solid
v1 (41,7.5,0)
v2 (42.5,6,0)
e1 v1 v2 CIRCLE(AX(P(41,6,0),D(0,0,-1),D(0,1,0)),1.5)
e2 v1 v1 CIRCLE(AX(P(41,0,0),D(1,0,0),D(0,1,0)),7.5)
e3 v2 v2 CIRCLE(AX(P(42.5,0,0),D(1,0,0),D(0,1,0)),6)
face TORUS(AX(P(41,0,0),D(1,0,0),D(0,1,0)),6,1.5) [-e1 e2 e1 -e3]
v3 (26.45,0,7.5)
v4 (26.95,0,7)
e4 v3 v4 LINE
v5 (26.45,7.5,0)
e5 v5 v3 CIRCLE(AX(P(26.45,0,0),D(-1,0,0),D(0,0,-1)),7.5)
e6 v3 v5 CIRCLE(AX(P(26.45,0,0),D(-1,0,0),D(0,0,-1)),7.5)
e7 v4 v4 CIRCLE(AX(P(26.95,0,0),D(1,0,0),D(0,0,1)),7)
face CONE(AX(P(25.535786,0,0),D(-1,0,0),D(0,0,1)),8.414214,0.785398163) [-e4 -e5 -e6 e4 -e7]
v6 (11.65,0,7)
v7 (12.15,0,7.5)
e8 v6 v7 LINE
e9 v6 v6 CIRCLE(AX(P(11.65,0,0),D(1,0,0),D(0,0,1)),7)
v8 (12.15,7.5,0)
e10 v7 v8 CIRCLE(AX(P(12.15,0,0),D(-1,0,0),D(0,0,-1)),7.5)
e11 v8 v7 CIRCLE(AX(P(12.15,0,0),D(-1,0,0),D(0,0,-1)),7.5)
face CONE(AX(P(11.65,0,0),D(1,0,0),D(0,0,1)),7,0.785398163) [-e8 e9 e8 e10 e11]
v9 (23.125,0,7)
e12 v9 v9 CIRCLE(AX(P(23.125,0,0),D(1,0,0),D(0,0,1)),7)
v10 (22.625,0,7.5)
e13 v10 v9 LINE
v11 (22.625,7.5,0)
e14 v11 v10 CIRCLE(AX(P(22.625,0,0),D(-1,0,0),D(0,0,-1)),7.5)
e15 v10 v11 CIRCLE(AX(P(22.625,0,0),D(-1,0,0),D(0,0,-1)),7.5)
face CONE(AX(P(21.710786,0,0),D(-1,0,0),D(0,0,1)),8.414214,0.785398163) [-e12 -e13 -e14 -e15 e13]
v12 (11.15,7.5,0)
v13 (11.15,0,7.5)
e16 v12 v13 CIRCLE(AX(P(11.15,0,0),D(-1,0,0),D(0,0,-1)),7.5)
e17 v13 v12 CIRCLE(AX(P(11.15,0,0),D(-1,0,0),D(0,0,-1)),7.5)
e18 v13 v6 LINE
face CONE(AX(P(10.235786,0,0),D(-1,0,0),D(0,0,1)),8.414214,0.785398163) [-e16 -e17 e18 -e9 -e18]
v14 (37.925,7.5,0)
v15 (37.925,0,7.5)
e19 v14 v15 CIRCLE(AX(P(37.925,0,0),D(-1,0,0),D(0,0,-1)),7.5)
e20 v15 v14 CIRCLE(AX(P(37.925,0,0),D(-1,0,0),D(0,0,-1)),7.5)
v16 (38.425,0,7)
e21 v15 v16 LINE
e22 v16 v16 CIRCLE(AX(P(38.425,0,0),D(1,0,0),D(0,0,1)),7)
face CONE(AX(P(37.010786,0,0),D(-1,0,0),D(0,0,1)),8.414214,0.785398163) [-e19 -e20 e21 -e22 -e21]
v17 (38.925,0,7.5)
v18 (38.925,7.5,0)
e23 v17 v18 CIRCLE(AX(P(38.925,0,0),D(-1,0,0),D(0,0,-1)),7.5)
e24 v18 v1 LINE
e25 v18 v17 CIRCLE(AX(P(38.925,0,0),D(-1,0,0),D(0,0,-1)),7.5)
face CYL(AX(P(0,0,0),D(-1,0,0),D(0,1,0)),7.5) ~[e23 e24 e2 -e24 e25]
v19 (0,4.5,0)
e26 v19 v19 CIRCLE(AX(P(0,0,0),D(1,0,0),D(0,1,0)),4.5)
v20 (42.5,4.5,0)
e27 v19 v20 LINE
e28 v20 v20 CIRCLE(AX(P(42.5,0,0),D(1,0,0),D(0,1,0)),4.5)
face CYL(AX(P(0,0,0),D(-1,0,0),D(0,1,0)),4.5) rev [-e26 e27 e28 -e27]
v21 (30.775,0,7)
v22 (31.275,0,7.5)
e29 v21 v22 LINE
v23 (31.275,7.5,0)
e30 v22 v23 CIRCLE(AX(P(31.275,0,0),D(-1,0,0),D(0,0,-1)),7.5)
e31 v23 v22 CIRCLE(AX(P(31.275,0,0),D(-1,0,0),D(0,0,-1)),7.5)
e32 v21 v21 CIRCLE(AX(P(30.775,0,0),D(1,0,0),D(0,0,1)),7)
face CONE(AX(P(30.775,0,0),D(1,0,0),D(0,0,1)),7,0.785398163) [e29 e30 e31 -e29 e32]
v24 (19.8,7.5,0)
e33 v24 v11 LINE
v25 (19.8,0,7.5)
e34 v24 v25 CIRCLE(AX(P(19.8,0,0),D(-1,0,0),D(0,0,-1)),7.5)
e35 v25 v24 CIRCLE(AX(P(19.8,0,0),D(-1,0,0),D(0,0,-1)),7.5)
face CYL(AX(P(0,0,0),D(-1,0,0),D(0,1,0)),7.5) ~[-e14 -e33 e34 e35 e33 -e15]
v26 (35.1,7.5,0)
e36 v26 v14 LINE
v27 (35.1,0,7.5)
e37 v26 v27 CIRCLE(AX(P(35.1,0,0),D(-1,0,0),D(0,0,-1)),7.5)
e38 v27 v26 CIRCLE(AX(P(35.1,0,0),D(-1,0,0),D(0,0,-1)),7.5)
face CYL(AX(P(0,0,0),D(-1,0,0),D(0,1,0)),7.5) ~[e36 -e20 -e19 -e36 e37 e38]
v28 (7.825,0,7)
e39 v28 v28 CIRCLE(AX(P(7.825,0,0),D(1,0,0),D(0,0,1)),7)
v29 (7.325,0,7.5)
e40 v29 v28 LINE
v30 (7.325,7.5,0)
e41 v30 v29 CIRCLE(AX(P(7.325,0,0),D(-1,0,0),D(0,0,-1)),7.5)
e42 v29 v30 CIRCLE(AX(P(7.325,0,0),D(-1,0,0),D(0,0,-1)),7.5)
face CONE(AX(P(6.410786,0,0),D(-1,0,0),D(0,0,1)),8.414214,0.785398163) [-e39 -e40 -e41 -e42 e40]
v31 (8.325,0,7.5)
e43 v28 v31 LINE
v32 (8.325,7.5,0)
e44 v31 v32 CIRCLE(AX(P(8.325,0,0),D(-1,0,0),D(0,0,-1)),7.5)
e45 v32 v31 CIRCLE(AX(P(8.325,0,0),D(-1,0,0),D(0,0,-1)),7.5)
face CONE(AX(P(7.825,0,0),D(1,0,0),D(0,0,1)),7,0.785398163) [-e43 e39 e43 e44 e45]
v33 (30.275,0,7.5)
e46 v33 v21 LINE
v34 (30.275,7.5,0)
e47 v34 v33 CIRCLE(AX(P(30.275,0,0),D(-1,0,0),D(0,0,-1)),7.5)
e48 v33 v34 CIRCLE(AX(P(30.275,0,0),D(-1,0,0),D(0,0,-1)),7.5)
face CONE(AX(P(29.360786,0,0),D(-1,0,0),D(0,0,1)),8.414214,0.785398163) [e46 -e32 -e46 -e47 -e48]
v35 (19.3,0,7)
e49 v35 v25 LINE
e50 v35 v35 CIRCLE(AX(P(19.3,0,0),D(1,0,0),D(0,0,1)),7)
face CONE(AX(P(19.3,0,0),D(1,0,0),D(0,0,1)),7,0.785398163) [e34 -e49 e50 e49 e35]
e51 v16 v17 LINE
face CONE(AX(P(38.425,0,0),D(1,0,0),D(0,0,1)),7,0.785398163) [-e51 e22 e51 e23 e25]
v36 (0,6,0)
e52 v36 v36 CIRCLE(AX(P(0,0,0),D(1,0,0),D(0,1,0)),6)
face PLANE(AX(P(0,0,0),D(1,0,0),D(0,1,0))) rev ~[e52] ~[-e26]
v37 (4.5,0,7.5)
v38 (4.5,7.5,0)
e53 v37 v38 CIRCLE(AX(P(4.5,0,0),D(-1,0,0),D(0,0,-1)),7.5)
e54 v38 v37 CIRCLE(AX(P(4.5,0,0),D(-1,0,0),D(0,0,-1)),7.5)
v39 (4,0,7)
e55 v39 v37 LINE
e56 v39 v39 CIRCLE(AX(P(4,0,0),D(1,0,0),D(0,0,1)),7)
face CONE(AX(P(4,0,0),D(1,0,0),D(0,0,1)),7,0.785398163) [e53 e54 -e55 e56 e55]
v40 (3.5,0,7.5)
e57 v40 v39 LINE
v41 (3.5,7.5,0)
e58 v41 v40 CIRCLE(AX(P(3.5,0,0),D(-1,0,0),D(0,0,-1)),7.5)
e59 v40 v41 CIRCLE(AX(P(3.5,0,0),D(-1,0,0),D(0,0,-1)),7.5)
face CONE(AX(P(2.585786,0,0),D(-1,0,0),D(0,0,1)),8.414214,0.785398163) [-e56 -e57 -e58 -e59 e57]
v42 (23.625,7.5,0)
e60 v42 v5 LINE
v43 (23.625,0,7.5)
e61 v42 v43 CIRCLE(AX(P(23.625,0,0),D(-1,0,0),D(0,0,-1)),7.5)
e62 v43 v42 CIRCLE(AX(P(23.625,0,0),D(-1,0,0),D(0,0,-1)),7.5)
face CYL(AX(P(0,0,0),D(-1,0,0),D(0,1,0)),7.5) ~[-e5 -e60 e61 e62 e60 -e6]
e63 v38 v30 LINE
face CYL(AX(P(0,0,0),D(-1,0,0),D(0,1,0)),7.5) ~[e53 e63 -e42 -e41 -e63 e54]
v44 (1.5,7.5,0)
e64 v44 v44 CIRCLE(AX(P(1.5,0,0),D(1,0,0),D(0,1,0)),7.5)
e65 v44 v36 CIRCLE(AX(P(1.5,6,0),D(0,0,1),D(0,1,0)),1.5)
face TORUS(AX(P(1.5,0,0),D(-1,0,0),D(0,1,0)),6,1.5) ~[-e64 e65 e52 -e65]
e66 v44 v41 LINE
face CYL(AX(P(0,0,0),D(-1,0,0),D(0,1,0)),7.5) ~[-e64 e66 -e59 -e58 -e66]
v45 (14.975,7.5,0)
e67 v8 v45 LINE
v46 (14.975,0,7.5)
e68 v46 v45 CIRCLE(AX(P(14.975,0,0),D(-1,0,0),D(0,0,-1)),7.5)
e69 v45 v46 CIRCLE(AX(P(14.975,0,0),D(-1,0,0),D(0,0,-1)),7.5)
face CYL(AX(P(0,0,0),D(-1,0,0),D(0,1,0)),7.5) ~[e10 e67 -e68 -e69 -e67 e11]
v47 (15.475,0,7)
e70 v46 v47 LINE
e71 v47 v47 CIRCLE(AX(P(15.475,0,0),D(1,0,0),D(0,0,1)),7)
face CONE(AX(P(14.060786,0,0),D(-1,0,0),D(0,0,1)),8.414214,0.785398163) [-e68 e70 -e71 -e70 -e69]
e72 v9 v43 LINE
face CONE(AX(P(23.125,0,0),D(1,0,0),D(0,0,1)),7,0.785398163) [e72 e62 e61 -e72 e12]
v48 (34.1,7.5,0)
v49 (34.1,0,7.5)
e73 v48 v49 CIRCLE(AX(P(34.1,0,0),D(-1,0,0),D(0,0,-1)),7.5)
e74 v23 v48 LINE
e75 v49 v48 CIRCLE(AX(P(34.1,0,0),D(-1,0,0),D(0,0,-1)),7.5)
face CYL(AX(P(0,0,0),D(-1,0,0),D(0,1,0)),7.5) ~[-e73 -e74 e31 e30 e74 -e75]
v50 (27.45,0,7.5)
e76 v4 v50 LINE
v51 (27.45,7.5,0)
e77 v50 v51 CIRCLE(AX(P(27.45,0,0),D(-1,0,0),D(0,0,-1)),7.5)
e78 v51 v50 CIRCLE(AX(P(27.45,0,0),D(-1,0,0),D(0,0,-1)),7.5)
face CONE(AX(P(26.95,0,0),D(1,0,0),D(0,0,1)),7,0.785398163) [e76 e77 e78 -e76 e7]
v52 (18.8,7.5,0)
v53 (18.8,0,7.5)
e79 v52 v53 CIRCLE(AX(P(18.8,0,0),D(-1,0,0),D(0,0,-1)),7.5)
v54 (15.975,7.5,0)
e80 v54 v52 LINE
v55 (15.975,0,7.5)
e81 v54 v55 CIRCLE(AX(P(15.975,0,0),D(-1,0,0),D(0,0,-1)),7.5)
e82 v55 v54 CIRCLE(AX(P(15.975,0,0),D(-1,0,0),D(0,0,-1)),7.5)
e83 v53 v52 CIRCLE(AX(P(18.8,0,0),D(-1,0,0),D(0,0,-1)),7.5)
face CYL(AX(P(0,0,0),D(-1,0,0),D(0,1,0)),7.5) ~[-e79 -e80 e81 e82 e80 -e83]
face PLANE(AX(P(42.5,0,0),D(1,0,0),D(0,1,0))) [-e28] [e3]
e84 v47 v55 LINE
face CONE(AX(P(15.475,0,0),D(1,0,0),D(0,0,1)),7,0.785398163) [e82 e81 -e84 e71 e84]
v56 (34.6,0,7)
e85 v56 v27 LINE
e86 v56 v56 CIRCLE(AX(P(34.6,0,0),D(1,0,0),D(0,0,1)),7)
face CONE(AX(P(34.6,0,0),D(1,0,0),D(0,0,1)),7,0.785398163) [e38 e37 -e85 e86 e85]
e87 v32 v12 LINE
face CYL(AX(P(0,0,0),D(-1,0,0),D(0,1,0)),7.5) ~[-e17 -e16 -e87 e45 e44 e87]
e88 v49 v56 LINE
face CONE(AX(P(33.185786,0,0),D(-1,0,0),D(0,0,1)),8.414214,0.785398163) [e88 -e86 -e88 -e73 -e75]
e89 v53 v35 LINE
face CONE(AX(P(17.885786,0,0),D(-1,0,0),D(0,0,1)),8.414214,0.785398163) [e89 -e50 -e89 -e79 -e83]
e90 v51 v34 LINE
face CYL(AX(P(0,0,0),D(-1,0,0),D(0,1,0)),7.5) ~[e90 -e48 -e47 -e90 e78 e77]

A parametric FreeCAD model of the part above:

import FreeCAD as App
import Part
import Sketcher
Q = App.Units.Quantity


def edges_at(feature, points):
    """Names of the edges that pass closest to the given points."""
    edges = feature.Shape.Edges
    near = lambda p: min(range(len(edges)), key=lambda i: edges[i].distToShape(Part.Vertex(*p))[0])
    return sorted({f"Edge{near(p) + 1}" for p in points})


def add_polygon(sketch, points):
    """Adds a closed chain of lines whose ends are joined by coincident constraints."""
    first, n = sketch.GeometryCount, len(points)
    for a, b in zip(points, points[1:] + points[:1]):
        sketch.addGeometry(Part.LineSegment(App.Vector(*a, 0), App.Vector(*b, 0)), False)
    for i in range(n):
        sketch.addConstraint(Sketcher.Constraint("Coincident", first + i, 2, first + (i + 1) % n, 1))

doc = App.newDocument("Part")
body = doc.addObject("PartDesign::Body", "Body")

sketch1 = doc.addObject("Sketcher::SketchObject", "Sketch")
body.addObject(sketch1)
sketch1.AttachmentSupport = (doc.YZ_Plane, [""])
sketch1.MapMode = "FlatFace"
sketch1.addGeometry(Part.Circle(App.Vector(0, 0, 0), App.Vector(0, 0, 1), 7.5), False)
sketch1.addGeometry(Part.Circle(App.Vector(0, 0, 0), App.Vector(0, 0, 1), 4.5), False)
sketch1.addConstraint(Sketcher.Constraint("Coincident", 0, 3, -1, 1))
sketch1.addConstraint(Sketcher.Constraint("Coincident", 1, 3, -1, 1))
sketch1.addConstraint(Sketcher.Constraint("Diameter", 0, Q("15 mm")))
sketch1.addConstraint(Sketcher.Constraint("Diameter", 1, Q("9 mm")))
pad1 = doc.addObject("PartDesign::Pad", "Pad")
body.addObject(pad1)
pad1.Profile = sketch1
pad1.Length = 42.5
doc.recompute()

fillet = doc.addObject("PartDesign::Fillet", "Fillet")
body.addObject(fillet)
fillet.Base = (pad1, edges_at(pad1, [(42.5, -7.5, 0), (0, -7.5, 0)]))
fillet.Radius = 1.5

sketch2 = doc.addObject("Sketcher::SketchObject", "Sketch001")
body.addObject(sketch2)
sketch2.AttachmentSupport = (doc.XZ_Plane, [""])
sketch2.MapMode = "FlatFace"
add_polygon(sketch2, [(5.4, 8.4), (2.6, 8.4), (4, 7)])
add_polygon(sketch2, [(6.4, 8.4), (7.8, 7), (9.2, 8.4)])
add_polygon(sketch2, [(10.2, 8.4), (11.7, 7), (13.1, 8.4)])
add_polygon(sketch2, [(14.1, 8.4), (15.5, 7), (16.9, 8.4)])
add_polygon(sketch2, [(17.9, 8.4), (19.3, 7), (20.7, 8.4)])
add_polygon(sketch2, [(21.7, 8.4), (23.1, 7), (24.5, 8.4)])
add_polygon(sketch2, [(25.5, 8.4), (26.9, 7), (28.4, 8.4)])
add_polygon(sketch2, [(29.4, 8.4), (30.8, 7), (32.2, 8.4)])
add_polygon(sketch2, [(33.2, 8.4), (34.6, 7), (36, 8.4)])
add_polygon(sketch2, [(37, 8.4), (38.4, 7), (39.8, 8.4)])
sketch2.addConstraint(Sketcher.Constraint("Horizontal", 0))
sketch2.addConstraint(Sketcher.Constraint("Horizontal", 5))
sketch2.addConstraint(Sketcher.Constraint("Horizontal", 8))
sketch2.addConstraint(Sketcher.Constraint("Horizontal", 11))
sketch2.addConstraint(Sketcher.Constraint("Horizontal", 14))
sketch2.addConstraint(Sketcher.Constraint("Horizontal", 17))
sketch2.addConstraint(Sketcher.Constraint("Horizontal", 20))
sketch2.addConstraint(Sketcher.Constraint("Horizontal", 23))
sketch2.addConstraint(Sketcher.Constraint("Horizontal", 26))
sketch2.addConstraint(Sketcher.Constraint("Horizontal", 29))
sketch2.addConstraint(Sketcher.Constraint("Perpendicular", 1, 2))
sketch2.addConstraint(Sketcher.Constraint("Perpendicular", 2, 3))
sketch2.addConstraint(Sketcher.Constraint("Perpendicular", 3, 4))
sketch2.addConstraint(Sketcher.Constraint("Perpendicular", 4, 6))
sketch2.addConstraint(Sketcher.Constraint("Perpendicular", 6, 7))
sketch2.addConstraint(Sketcher.Constraint("Perpendicular", 7, 9))
sketch2.addConstraint(Sketcher.Constraint("Perpendicular", 9, 10))
sketch2.addConstraint(Sketcher.Constraint("Perpendicular", 10, 12))
sketch2.addConstraint(Sketcher.Constraint("Perpendicular", 12, 13))
sketch2.addConstraint(Sketcher.Constraint("Perpendicular", 13, 15))
sketch2.addConstraint(Sketcher.Constraint("Perpendicular", 15, 16))
sketch2.addConstraint(Sketcher.Constraint("Perpendicular", 16, 18))
sketch2.addConstraint(Sketcher.Constraint("Perpendicular", 18, 19))
sketch2.addConstraint(Sketcher.Constraint("Perpendicular", 19, 21))
sketch2.addConstraint(Sketcher.Constraint("Perpendicular", 21, 22))
sketch2.addConstraint(Sketcher.Constraint("Perpendicular", 22, 24))
sketch2.addConstraint(Sketcher.Constraint("Perpendicular", 24, 25))
sketch2.addConstraint(Sketcher.Constraint("Perpendicular", 25, 27))
sketch2.addConstraint(Sketcher.Constraint("Perpendicular", 27, 28))
sketch2.addConstraint(Sketcher.Constraint("Horizontal", 1, 2, 3, 2))
sketch2.addConstraint(Sketcher.Constraint("Horizontal", 2, 2, 4, 2))
sketch2.addConstraint(Sketcher.Constraint("Horizontal", 3, 2, 6, 2))
sketch2.addConstraint(Sketcher.Constraint("Horizontal", 5, 2, 7, 2))
sketch2.addConstraint(Sketcher.Constraint("Horizontal", 6, 2, 9, 2))
sketch2.addConstraint(Sketcher.Constraint("Horizontal", 8, 2, 10, 2))
sketch2.addConstraint(Sketcher.Constraint("Horizontal", 9, 2, 12, 2))
sketch2.addConstraint(Sketcher.Constraint("Horizontal", 11, 2, 13, 2))
sketch2.addConstraint(Sketcher.Constraint("Horizontal", 12, 2, 15, 2))
sketch2.addConstraint(Sketcher.Constraint("Horizontal", 14, 2, 16, 2))
sketch2.addConstraint(Sketcher.Constraint("Horizontal", 15, 2, 18, 2))
sketch2.addConstraint(Sketcher.Constraint("Horizontal", 17, 2, 19, 2))
sketch2.addConstraint(Sketcher.Constraint("Horizontal", 18, 2, 21, 2))
sketch2.addConstraint(Sketcher.Constraint("Horizontal", 20, 2, 22, 2))
sketch2.addConstraint(Sketcher.Constraint("Horizontal", 21, 2, 24, 2))
sketch2.addConstraint(Sketcher.Constraint("Horizontal", 23, 2, 25, 2))
sketch2.addConstraint(Sketcher.Constraint("Horizontal", 24, 2, 27, 2))
sketch2.addConstraint(Sketcher.Constraint("Horizontal", 26, 2, 28, 2))
sketch2.addConstraint(Sketcher.Constraint("Equal", 1, 2))
sketch2.addConstraint(Sketcher.Constraint("Distance", 1, Q("2.000001 mm")))
sketch2.addConstraint(Sketcher.Constraint("DistanceX", -1, 1, 1, 2, Q("4 mm")))
sketch2.addConstraint(Sketcher.Constraint("DistanceY", -1, 1, 1, 2, Q("7 mm")))
sketch2.addConstraint(Sketcher.Constraint("DistanceX", -1, 1, 12, 2, Q("19.3 mm")))
sketch2.addConstraint(Sketcher.Constraint("DistanceX", -1, 1, 24, 2, Q("34.6 mm")))
sketch2.addConstraint(Sketcher.Constraint("DistanceX", -1, 1, 6, 2, Q("11.65 mm")))
sketch2.addConstraint(Sketcher.Constraint("DistanceX", -1, 1, 18, 2, Q("26.95 mm")))
sketch2.addConstraint(Sketcher.Constraint("DistanceX", 3, 2, 9, 2, Q("7.65 mm")))
sketch2.addConstraint(Sketcher.Constraint("DistanceX", 9, 2, 15, 2, Q("7.65 mm")))
sketch2.addConstraint(Sketcher.Constraint("DistanceX", 15, 2, 21, 2, Q("7.65 mm")))
sketch2.addConstraint(Sketcher.Constraint("DistanceX", 21, 2, 27, 2, Q("7.65 mm")))
sketch2.addConstraint(Sketcher.Constraint("DistanceX", -1, 1, 3, 2, Q("7.825 mm")))
groove = doc.addObject("PartDesign::Groove", "Groove")
body.addObject(groove)
groove.Profile = sketch2
groove.ReferenceAxis = (sketch2, ["H_Axis"])
groove.Angle = 360

doc.recompute()
